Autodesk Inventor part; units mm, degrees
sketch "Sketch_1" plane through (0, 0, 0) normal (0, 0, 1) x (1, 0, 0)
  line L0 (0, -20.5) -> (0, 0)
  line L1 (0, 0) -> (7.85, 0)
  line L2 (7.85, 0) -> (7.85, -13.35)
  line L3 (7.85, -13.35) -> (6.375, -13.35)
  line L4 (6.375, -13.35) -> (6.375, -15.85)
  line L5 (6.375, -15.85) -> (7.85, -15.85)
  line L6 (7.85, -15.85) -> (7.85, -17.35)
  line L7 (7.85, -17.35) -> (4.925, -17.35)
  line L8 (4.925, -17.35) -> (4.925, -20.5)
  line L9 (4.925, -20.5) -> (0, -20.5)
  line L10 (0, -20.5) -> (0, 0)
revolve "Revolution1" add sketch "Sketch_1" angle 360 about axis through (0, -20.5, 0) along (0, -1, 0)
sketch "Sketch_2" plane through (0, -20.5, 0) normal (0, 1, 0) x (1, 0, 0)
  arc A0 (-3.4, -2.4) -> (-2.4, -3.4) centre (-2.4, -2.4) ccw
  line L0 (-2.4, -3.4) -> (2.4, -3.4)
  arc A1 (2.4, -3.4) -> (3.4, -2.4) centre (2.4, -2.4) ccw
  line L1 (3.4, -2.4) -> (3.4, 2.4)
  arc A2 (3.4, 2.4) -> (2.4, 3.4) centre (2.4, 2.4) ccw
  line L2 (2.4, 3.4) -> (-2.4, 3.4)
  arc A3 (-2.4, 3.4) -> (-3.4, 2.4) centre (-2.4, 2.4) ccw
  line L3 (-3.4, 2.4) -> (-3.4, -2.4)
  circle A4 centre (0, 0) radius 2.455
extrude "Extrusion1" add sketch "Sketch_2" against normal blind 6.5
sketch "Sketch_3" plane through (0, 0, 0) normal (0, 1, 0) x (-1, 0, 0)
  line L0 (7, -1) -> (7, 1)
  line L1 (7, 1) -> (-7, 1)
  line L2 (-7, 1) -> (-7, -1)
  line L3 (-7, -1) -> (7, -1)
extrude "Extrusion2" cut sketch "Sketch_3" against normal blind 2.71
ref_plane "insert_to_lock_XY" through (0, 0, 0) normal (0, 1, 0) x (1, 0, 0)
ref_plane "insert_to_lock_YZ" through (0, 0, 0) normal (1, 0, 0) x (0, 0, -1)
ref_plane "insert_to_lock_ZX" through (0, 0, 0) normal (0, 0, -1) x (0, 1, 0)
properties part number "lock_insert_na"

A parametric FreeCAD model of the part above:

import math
import FreeCAD as App
import Part
import Sketcher

V = App.Vector
Q = App.Units.Quantity

doc = App.newDocument("Part")
params = doc.addObject("Spreadsheet::Sheet", "Params")
for row, (alias, value) in enumerate([
    ("sketch1_height", "20.5 mm"),
    ("sketch1_height2", "1.5 mm"),
    ("sketch1_height3", "2.5 mm"),
    ("sketch1_width", "7.85 mm"),
    ("sketch1_height4", "3.15 mm"),
    ("revolution_angle", "360 deg"),
    ("sketch2_radius", "1 mm"),
    ("sketch2_diameter", "4.91 mm"),
    ("sketch2_width", "4.8 mm"),
    ("pad1_length", "6.5 mm"),
    ("sketch3_width", "14 mm"),
    ("sketch3_height", "2 mm"),
    ("pocket1_length", "2.71 mm"),
], start=1):
    params.set(f"A{row}", alias)
    params.set(f"B{row}", "=" + value)
    params.setAlias(f"B{row}", alias)

body = doc.addObject("PartDesign::Body", "Body")

# Sketch on XY plane
sketch1 = doc.addObject("Sketcher::SketchObject", "Sketch")
body.addObject(sketch1)
sketch1.AttachmentSupport = (doc.XY_Plane, [""])
sketch1.MapMode = "FlatFace"
sketch1.addGeometry([
    Part.LineSegment(V(0, 0, 0), V(0, -20.5, 0)),  # 0
    Part.LineSegment(V(0, -20.5, 0), V(4.925, -20.5, 0)),  # 1
    Part.LineSegment(V(4.925, -20.5, 0), V(4.925, -17.35, 0)),  # 2
    Part.LineSegment(V(4.925, -17.35, 0), V(7.85, -17.35, 0)),  # 3
    Part.LineSegment(V(7.85, -17.35, 0), V(7.85, -15.85, 0)),  # 4
    Part.LineSegment(V(7.85, -15.85, 0), V(6.375, -15.85, 0)),  # 5
    Part.LineSegment(V(6.375, -15.85, 0), V(6.375, -13.35, 0)),  # 6
    Part.LineSegment(V(6.375, -13.35, 0), V(7.85, -13.35, 0)),  # 7
    Part.LineSegment(V(7.85, -13.35, 0), V(7.85, 0, 0)),  # 8
    Part.LineSegment(V(7.85, 0, 0), V(0, 0, 0)),  # 9
], False)
sketch1.addConstraint([
    Sketcher.Constraint("Coincident", 0, 2, 1, 1),
    Sketcher.Constraint("Coincident", 1, 2, 2, 1),
    Sketcher.Constraint("Coincident", 2, 2, 3, 1),
    Sketcher.Constraint("Coincident", 3, 2, 4, 1),
    Sketcher.Constraint("Coincident", 4, 2, 5, 1),
    Sketcher.Constraint("Coincident", 5, 2, 6, 1),
    Sketcher.Constraint("Coincident", 6, 2, 7, 1),
    Sketcher.Constraint("Coincident", 7, 2, 8, 1),
    Sketcher.Constraint("Coincident", 8, 2, 9, 1),
    Sketcher.Constraint("Coincident", 9, 2, 0, 1),
    Sketcher.Constraint("Vertical", 0),
    Sketcher.Constraint("Horizontal", 1),
    Sketcher.Constraint("Vertical", 2),
    Sketcher.Constraint("Horizontal", 3),
    Sketcher.Constraint("Vertical", 4),
    Sketcher.Constraint("Horizontal", 5),
    Sketcher.Constraint("Vertical", 6),
    Sketcher.Constraint("Horizontal", 7),
    Sketcher.Constraint("Vertical", 8),
    Sketcher.Constraint("Horizontal", 9),
    Sketcher.Constraint("Coincident", 9, 2, -1, 1),
    Sketcher.Constraint("Vertical", 4, 2, 7, 2),
    Sketcher.Constraint("DistanceY", 0, 2, 0, 1, Q("20.5 mm")),
    Sketcher.Constraint("DistanceY", 4, 1, 4, 2, Q("1.5 mm")),
    Sketcher.Constraint("DistanceY", 6, 1, 6, 2, Q("2.5 mm")),
    Sketcher.Constraint("DistanceX", 9, 2, 9, 1, Q("7.85 mm")),
    Sketcher.Constraint("DistanceY", 2, 1, 2, 2, Q("3.15 mm")),
    Sketcher.Constraint("DistanceX", 1, 1, 1, 2, Q("4.925 mm")),
    Sketcher.Constraint("DistanceX", 5, 2, 5, 1, Q("1.475 mm")),
])
sketch1.setExpression("Constraints[22]", "Params.sketch1_height")
sketch1.setExpression("Constraints[23]", "Params.sketch1_height2")
sketch1.setExpression("Constraints[24]", "Params.sketch1_height3")
sketch1.setExpression("Constraints[25]", "Params.sketch1_width")
sketch1.setExpression("Constraints[26]", "Params.sketch1_height4")
revolution = doc.addObject("PartDesign::Revolution", "Revolution")
body.addObject(revolution)
revolution.Profile = sketch1
revolution.ReferenceAxis = (sketch1, ["V_Axis"])
revolution.setExpression("Angle", "Params.revolution_angle")

# Sketch on XZ plane
sketch2 = doc.addObject("Sketcher::SketchObject", "Sketch001")
body.addObject(sketch2)
sketch2.AttachmentSupport = (doc.XZ_Plane, [""])
sketch2.MapMode = "FlatFace"
sketch2.AttachmentOffset = App.Placement(V(0, 0, 20.5), App.Rotation())
sketch2.addGeometry([
    Part.LineSegment(V(-3.4, -2.4, 0), V(-3.4, 2.4, 0)),  # 0
    Part.ArcOfCircle(Part.Circle(V(-2.4, 2.4, 0), V(0, 0, 1), 1), math.radians(90), math.radians(180)),  # 1
    Part.LineSegment(V(-2.4, 3.4, 0), V(2.4, 3.4, 0)),  # 2
    Part.ArcOfCircle(Part.Circle(V(2.4, 2.4, 0), V(0, 0, 1), 1), math.radians(0), math.radians(90)),  # 3
    Part.LineSegment(V(3.4, 2.4, 0), V(3.4, -2.4, 0)),  # 4
    Part.ArcOfCircle(Part.Circle(V(2.4, -2.4, 0), V(0, 0, 1), 1), math.radians(-90), math.radians(0)),  # 5
    Part.LineSegment(V(2.4, -3.4, 0), V(-2.4, -3.4, 0)),  # 6
    Part.ArcOfCircle(Part.Circle(V(-2.4, -2.4, 0), V(0, 0, 1), 1), math.radians(180), math.radians(270)),  # 7
    Part.Circle(V(0, 0, 0), V(0, 0, 1), 2.455),  # 8
], False)
sketch2.addConstraint([
    Sketcher.Constraint("Tangent", 0, 2, 1, 2),
    Sketcher.Constraint("Tangent", 1, 1, 2, 1),
    Sketcher.Constraint("Tangent", 2, 2, 3, 2),
    Sketcher.Constraint("Tangent", 3, 1, 4, 1),
    Sketcher.Constraint("Tangent", 4, 2, 5, 2),
    Sketcher.Constraint("Tangent", 5, 1, 6, 1),
    Sketcher.Constraint("Tangent", 6, 2, 7, 2),
    Sketcher.Constraint("Tangent", 7, 1, 0, 1),
    Sketcher.Constraint("Vertical", 0),
    Sketcher.Constraint("Horizontal", 2),
    Sketcher.Constraint("Vertical", 4),
    Sketcher.Constraint("Horizontal", 6),
    Sketcher.Constraint("Coincident", 8, 3, -1, 1),
    Sketcher.Constraint("Equal", 1, 3),
    Sketcher.Constraint("Equal", 3, 5),
    Sketcher.Constraint("Equal", 5, 7),
    Sketcher.Constraint("Symmetric", 1, 3, 5, 3, -1, 1),
    Sketcher.Constraint("Equal", 6, 0),
    Sketcher.Constraint("Radius", 1, Q("1 mm")),
    Sketcher.Constraint("Diameter", 8, Q("4.91 mm")),
    Sketcher.Constraint("DistanceX", 2, 1, 2, 2, Q("4.8 mm")),
])
sketch2.setExpression("Constraints[18]", "Params.sketch2_radius")
sketch2.setExpression("Constraints[19]", "Params.sketch2_diameter")
sketch2.setExpression("Constraints[20]", "Params.sketch2_width")
pad1 = doc.addObject("PartDesign::Pad", "Pad")
body.addObject(pad1)
pad1.Profile = sketch2
pad1.setExpression("Length", "Params.pad1_length")

# Sketch on XZ plane
sketch3 = doc.addObject("Sketcher::SketchObject", "Sketch002")
body.addObject(sketch3)
sketch3.AttachmentSupport = (doc.XZ_Plane, [""])
sketch3.MapMode = "FlatFace"
sketch3.addGeometry([
    Part.LineSegment(V(7, -1, 0), V(-7, -1, 0)),
    Part.LineSegment(V(-7, -1, 0), V(-7, 1, 0)),
    Part.LineSegment(V(-7, 1, 0), V(7, 1, 0)),
    Part.LineSegment(V(7, 1, 0), V(7, -1, 0)),
], False)
sketch3.addConstraint([
    Sketcher.Constraint("Coincident", 0, 2, 1, 1),
    Sketcher.Constraint("Coincident", 1, 2, 2, 1),
    Sketcher.Constraint("Coincident", 2, 2, 3, 1),
    Sketcher.Constraint("Coincident", 3, 2, 0, 1),
    Sketcher.Constraint("Horizontal", 0),
    Sketcher.Constraint("Vertical", 1),
    Sketcher.Constraint("Horizontal", 2),
    Sketcher.Constraint("Vertical", 3),
    Sketcher.Constraint("Symmetric", 0, 2, 2, 2, -1, 1),
    Sketcher.Constraint("DistanceX", 0, 2, 0, 1, Q("14 mm")),
    Sketcher.Constraint("DistanceY", 1, 1, 1, 2, Q("2 mm")),
])
sketch3.setExpression("Constraints[9]", "Params.sketch3_width")
sketch3.setExpression("Constraints[10]", "Params.sketch3_height")
pocket1 = doc.addObject("PartDesign::Pocket", "Pocket")
body.addObject(pocket1)
pocket1.Profile = sketch3
pocket1.setExpression("Length", "Params.pocket1_length")
pocket1.Reversed = True

doc.recompute()
